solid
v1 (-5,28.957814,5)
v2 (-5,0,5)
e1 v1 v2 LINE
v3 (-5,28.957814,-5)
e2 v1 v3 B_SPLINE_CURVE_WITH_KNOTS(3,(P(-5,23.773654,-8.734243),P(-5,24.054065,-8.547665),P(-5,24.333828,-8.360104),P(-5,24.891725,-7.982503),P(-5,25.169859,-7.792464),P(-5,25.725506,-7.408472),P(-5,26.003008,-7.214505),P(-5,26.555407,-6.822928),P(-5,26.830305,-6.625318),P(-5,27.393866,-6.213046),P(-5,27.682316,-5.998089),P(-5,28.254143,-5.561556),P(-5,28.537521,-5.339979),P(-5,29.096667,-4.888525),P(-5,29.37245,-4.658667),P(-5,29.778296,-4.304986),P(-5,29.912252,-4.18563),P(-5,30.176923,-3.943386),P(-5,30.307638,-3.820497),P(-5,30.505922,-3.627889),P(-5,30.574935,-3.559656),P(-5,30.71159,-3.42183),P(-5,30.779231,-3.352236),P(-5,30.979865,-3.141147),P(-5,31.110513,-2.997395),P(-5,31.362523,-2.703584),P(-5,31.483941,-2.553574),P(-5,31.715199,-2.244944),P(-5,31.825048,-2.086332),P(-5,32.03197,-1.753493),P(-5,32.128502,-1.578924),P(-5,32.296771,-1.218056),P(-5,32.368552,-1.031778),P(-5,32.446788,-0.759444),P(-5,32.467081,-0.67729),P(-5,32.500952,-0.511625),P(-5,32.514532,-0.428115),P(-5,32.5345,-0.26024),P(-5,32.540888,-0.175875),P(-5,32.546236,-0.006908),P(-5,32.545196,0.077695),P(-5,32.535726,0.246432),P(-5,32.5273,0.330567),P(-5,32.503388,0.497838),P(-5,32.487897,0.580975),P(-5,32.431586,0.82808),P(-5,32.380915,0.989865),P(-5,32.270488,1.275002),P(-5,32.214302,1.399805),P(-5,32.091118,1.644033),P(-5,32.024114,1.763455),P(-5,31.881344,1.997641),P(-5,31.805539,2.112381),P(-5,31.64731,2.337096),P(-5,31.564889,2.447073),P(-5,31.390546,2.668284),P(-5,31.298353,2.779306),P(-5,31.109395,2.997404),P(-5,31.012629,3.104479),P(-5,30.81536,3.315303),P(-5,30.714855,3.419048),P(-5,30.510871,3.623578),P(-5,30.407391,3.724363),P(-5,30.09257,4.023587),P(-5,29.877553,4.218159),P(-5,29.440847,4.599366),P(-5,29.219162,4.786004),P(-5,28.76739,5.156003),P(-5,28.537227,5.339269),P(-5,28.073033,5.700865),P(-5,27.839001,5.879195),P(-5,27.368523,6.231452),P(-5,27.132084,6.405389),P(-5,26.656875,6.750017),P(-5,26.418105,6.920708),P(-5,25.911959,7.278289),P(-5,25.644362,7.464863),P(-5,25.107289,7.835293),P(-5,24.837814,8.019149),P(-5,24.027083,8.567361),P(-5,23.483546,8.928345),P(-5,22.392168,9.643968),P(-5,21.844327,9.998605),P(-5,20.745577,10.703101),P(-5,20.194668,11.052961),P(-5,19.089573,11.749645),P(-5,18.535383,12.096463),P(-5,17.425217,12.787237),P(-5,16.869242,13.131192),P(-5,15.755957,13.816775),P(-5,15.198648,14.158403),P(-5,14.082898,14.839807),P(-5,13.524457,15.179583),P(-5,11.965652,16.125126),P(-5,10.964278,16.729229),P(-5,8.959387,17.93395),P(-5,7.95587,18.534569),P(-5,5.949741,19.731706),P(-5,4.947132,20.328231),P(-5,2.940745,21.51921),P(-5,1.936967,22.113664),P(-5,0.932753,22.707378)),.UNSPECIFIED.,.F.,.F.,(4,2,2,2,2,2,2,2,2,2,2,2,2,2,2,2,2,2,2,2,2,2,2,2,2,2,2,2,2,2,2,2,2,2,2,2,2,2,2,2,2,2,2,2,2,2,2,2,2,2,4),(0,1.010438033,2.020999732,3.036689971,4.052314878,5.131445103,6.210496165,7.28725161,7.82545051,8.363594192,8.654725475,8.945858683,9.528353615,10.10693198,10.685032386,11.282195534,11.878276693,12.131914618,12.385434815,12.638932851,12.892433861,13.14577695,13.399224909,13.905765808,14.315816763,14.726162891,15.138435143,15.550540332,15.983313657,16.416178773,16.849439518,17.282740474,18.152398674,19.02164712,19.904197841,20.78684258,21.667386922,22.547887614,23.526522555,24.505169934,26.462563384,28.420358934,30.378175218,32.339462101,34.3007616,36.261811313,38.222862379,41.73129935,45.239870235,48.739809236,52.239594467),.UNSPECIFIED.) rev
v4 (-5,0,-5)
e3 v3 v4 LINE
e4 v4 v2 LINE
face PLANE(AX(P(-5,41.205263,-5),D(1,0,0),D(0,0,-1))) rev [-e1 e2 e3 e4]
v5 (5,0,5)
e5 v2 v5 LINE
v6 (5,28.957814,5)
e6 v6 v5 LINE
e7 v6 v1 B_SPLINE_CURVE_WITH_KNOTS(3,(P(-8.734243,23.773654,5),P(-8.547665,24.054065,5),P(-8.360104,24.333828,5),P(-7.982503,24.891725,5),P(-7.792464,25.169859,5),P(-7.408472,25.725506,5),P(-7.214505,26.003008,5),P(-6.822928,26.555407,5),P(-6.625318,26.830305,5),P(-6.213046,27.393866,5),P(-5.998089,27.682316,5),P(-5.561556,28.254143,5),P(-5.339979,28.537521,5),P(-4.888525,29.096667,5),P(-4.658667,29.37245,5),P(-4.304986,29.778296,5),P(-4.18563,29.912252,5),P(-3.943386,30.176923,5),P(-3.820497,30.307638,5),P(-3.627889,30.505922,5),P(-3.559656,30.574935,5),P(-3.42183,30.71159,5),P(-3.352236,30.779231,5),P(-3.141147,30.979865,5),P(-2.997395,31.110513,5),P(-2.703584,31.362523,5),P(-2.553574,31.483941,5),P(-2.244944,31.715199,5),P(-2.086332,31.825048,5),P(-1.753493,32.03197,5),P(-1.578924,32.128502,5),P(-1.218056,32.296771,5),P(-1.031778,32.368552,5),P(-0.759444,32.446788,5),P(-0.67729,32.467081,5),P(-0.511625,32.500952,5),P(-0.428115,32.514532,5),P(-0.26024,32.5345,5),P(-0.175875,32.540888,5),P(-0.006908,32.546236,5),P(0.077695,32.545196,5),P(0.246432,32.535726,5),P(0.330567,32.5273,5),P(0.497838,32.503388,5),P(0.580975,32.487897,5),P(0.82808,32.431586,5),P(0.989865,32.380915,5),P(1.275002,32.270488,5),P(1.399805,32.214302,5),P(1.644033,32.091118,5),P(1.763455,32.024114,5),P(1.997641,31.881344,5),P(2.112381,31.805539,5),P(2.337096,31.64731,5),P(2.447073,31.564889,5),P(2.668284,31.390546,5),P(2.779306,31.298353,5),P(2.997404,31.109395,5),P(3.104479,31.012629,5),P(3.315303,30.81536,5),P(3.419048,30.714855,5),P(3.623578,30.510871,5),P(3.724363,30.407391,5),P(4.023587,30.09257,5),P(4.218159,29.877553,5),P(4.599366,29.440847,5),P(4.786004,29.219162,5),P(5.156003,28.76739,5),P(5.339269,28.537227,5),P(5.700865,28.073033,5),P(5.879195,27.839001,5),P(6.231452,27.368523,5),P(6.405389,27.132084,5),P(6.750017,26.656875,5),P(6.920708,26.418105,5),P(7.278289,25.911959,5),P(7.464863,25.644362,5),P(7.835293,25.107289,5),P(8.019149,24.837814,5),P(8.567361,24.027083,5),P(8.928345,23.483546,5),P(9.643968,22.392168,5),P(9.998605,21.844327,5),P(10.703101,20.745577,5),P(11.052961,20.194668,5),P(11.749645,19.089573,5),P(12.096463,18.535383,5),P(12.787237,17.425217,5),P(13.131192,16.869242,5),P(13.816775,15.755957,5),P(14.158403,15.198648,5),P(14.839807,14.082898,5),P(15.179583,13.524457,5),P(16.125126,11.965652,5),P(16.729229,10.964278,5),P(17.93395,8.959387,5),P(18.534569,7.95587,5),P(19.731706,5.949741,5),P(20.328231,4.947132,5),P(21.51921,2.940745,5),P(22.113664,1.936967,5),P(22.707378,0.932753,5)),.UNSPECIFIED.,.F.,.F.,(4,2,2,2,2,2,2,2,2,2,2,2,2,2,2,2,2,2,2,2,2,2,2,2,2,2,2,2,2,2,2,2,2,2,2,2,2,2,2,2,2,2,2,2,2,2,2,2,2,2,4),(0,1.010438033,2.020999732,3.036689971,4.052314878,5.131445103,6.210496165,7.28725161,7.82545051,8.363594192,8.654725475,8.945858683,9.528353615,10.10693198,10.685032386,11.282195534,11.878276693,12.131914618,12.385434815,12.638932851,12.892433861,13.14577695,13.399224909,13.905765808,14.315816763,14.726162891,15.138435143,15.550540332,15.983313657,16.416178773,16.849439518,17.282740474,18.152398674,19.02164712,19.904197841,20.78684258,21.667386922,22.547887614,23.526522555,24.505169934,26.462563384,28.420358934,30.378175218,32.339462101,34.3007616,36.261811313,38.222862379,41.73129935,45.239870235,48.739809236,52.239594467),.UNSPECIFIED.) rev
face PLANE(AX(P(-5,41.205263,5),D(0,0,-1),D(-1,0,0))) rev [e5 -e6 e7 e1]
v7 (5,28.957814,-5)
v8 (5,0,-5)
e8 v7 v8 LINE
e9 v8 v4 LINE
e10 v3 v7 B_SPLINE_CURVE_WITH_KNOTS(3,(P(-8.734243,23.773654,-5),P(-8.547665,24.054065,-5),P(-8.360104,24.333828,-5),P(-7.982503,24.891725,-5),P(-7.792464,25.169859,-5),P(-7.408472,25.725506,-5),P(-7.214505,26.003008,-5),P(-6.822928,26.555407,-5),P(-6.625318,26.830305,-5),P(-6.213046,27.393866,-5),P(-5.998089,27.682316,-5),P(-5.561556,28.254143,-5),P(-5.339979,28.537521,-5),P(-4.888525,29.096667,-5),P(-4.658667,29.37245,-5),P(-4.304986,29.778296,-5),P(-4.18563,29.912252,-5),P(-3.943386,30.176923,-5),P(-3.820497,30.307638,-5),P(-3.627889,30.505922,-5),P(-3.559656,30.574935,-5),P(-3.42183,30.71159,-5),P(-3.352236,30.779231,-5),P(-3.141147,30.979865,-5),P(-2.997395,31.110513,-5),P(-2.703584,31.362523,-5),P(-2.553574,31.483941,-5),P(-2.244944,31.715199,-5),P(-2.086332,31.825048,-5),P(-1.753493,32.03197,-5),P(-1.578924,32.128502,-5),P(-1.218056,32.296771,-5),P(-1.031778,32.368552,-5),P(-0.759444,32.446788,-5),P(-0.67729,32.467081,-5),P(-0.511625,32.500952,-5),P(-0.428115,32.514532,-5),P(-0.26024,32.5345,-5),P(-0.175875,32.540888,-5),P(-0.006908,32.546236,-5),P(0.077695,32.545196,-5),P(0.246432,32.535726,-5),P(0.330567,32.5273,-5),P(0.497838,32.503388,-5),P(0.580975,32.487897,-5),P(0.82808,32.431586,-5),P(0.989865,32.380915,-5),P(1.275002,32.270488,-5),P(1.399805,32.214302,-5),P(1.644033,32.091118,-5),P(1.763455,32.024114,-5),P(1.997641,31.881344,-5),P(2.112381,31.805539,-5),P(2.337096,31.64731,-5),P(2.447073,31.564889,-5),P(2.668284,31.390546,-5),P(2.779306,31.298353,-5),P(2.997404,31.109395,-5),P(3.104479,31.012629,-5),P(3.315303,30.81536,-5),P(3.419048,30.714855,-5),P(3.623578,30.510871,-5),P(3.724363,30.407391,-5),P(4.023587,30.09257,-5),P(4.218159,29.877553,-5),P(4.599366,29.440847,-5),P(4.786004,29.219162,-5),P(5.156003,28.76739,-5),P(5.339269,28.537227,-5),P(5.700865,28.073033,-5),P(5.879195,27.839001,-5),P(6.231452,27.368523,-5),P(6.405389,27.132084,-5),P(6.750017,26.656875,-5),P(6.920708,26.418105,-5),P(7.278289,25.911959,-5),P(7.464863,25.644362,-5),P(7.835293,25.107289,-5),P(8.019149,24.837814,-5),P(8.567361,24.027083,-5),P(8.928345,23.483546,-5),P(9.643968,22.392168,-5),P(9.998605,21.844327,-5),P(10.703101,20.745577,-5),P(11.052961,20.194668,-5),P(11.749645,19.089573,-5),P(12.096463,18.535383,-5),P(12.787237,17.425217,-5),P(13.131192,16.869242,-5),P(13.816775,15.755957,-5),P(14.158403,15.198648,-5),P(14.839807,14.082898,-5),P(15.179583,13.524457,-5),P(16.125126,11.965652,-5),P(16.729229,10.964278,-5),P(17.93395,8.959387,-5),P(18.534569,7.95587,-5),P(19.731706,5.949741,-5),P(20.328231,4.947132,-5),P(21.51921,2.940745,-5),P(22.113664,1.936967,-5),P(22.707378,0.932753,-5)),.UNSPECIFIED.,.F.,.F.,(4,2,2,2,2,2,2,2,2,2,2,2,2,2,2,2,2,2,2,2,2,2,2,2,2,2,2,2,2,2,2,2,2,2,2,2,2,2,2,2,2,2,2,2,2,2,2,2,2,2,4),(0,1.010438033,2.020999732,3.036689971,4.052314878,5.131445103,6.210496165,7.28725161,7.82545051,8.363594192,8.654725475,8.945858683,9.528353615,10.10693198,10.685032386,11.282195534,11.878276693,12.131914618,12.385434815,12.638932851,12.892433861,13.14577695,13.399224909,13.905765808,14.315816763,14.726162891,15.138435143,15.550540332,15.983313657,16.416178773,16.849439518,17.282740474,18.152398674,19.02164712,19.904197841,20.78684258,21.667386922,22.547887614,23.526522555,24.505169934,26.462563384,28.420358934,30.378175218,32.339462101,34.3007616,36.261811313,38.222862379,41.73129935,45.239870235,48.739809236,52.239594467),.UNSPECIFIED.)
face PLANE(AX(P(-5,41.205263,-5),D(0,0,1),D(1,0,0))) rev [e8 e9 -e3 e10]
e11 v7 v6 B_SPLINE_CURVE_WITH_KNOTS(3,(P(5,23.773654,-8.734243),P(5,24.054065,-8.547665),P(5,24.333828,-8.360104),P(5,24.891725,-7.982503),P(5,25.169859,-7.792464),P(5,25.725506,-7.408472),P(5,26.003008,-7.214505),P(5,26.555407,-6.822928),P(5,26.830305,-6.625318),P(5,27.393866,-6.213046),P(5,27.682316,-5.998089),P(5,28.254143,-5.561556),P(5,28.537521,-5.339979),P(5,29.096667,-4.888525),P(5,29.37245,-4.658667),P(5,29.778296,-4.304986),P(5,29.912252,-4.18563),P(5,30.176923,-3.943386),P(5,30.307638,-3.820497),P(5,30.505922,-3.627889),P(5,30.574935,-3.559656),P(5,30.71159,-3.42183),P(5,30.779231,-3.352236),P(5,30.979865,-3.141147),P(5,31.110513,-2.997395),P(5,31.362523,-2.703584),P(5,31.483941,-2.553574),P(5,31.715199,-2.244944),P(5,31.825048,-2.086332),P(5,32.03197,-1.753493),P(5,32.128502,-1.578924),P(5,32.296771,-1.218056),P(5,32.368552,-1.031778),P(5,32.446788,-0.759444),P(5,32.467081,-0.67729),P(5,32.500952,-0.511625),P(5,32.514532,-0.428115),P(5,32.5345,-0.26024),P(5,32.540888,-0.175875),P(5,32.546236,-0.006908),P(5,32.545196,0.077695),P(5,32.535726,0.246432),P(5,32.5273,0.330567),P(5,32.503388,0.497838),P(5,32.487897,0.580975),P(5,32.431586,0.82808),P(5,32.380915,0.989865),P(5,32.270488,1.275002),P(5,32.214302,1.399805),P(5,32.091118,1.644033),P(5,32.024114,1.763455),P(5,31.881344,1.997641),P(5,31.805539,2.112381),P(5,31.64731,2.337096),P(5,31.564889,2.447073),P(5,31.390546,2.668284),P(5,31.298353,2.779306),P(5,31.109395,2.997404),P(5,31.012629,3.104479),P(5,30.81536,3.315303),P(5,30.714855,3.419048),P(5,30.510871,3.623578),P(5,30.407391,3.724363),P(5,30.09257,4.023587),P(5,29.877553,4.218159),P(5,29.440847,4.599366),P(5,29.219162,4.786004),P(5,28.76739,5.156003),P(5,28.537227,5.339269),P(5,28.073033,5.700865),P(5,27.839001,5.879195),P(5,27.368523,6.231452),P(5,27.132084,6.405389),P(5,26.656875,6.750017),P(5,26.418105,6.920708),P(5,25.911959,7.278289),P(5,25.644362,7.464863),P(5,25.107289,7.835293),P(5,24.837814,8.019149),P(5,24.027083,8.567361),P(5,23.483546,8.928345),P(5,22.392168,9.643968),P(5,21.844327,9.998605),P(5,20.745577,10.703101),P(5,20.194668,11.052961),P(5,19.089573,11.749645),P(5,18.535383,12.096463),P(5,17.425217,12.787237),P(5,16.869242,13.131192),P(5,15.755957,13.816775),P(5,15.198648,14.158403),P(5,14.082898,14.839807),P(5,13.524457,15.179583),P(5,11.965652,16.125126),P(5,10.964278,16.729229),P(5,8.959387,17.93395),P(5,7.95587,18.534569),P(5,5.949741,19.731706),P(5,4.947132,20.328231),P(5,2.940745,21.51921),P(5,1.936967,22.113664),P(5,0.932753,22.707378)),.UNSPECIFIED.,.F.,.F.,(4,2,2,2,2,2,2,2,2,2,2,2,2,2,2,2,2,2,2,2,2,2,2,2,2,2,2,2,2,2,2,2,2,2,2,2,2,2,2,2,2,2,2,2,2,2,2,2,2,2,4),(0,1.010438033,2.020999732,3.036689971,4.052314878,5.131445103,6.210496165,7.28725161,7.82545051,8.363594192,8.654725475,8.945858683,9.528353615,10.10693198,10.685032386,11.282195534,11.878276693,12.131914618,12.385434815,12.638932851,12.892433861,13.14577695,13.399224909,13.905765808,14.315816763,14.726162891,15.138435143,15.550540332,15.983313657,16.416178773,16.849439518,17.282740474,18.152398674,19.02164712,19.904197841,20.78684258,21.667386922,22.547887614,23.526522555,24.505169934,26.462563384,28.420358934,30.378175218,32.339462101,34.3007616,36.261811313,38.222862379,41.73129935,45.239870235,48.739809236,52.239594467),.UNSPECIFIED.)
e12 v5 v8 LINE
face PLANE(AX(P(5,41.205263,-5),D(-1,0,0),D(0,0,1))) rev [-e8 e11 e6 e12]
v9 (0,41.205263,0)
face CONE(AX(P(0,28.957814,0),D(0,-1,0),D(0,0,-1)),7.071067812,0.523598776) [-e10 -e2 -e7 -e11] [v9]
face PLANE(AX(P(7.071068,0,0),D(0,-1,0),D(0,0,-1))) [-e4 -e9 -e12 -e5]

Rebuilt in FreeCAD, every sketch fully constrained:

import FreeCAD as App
import Part
import Sketcher
from FreeCAD import Vector
Q = App.Units.Quantity

doc = App.newDocument("Part")
body = doc.addObject("PartDesign::Body", "Body")

sketch1 = body.newObject("Sketcher::SketchObject", "Sketch")
sketch1.AttachmentSupport = (doc.getObject("XY_Plane"), [""])
sketch1.MapMode = "FlatFace"
sketch1.addGeometry(Part.LineSegment(Vector(0, 41, 0), Vector(0, 0, 0)), False)
sketch1.addGeometry(Part.LineSegment(Vector(0, 0, 0), Vector(7, 0, 0)), False)
sketch1.addGeometry(Part.LineSegment(Vector(7, 0, 0), Vector(7, 29, 0)), False)
sketch1.addGeometry(Part.LineSegment(Vector(7, 29, 0), Vector(0, 41, 0)), False)
sketch1.addConstraint(Sketcher.Constraint("Coincident", 0, 2, 1, 1))
sketch1.addConstraint(Sketcher.Constraint("Coincident", 1, 2, 2, 1))
sketch1.addConstraint(Sketcher.Constraint("Coincident", 2, 2, 3, 1))
sketch1.addConstraint(Sketcher.Constraint("Coincident", 3, 2, 0, 1))
sketch1.addConstraint(Sketcher.Constraint("Vertical", 0))
sketch1.addConstraint(Sketcher.Constraint("Horizontal", 1))
sketch1.addConstraint(Sketcher.Constraint("Vertical", 2))
sketch1.addConstraint(Sketcher.Constraint("Coincident", 0, 2, -1, 1))
sketch1.addConstraint(Sketcher.Constraint("Angle", 3, Q("120 deg")))
sketch1.addConstraint(Sketcher.Constraint("DistanceX", 1, 1, 1, 2, Q("7.071068 mm")))
sketch1.addConstraint(Sketcher.Constraint("DistanceY", 0, 2, 0, 1, Q("41.205263 mm")))
revolution = body.newObject("PartDesign::Revolution", "Revolution")
revolution.Profile = sketch1
revolution.ReferenceAxis = (sketch1, ["V_Axis"])
revolution.Angle = 360

sketch2 = body.newObject("Sketcher::SketchObject", "Sketch001")
sketch2.AttachmentSupport = (doc.getObject("XZ_Plane"), [""])
sketch2.MapMode = "FlatFace"
sketch2.addGeometry(Part.LineSegment(Vector(-13, -13, 0), Vector(-13, 13, 0)), False)
sketch2.addGeometry(Part.LineSegment(Vector(-13, 13, 0), Vector(13, 13, 0)), False)
sketch2.addGeometry(Part.LineSegment(Vector(13, 13, 0), Vector(13, -13, 0)), False)
sketch2.addGeometry(Part.LineSegment(Vector(13, -13, 0), Vector(-13, -13, 0)), False)
sketch2.addGeometry(Part.LineSegment(Vector(5, 5, 0), Vector(-5, 5, 0)), False)
sketch2.addGeometry(Part.LineSegment(Vector(-5, 5, 0), Vector(-5, -5, 0)), False)
sketch2.addGeometry(Part.LineSegment(Vector(-5, -5, 0), Vector(5, -5, 0)), False)
sketch2.addGeometry(Part.LineSegment(Vector(5, -5, 0), Vector(5, 5, 0)), False)
sketch2.addConstraint(Sketcher.Constraint("Coincident", 0, 2, 1, 1))
sketch2.addConstraint(Sketcher.Constraint("Coincident", 1, 2, 2, 1))
sketch2.addConstraint(Sketcher.Constraint("Coincident", 2, 2, 3, 1))
sketch2.addConstraint(Sketcher.Constraint("Coincident", 3, 2, 0, 1))
sketch2.addConstraint(Sketcher.Constraint("Coincident", 4, 2, 5, 1))
sketch2.addConstraint(Sketcher.Constraint("Coincident", 5, 2, 6, 1))
sketch2.addConstraint(Sketcher.Constraint("Coincident", 6, 2, 7, 1))
sketch2.addConstraint(Sketcher.Constraint("Coincident", 7, 2, 4, 1))
sketch2.addConstraint(Sketcher.Constraint("Vertical", 0))
sketch2.addConstraint(Sketcher.Constraint("Horizontal", 1))
sketch2.addConstraint(Sketcher.Constraint("Vertical", 2))
sketch2.addConstraint(Sketcher.Constraint("Horizontal", 3))
sketch2.addConstraint(Sketcher.Constraint("Horizontal", 4))
sketch2.addConstraint(Sketcher.Constraint("Vertical", 5))
sketch2.addConstraint(Sketcher.Constraint("Horizontal", 6))
sketch2.addConstraint(Sketcher.Constraint("Vertical", 7))
sketch2.addConstraint(Sketcher.Constraint("Symmetric", 0, 2, 2, 2, -1, 1))
sketch2.addConstraint(Sketcher.Constraint("Symmetric", 4, 2, 6, 2, -1, 1))
sketch2.addConstraint(Sketcher.Constraint("Equal", 3, 0))
sketch2.addConstraint(Sketcher.Constraint("Equal", 6, 5))
sketch2.addConstraint(Sketcher.Constraint("DistanceX", 4, 2, 4, 1, Q("10 mm")))
sketch2.addConstraint(Sketcher.Constraint("DistanceX", 1, 1, 1, 2, Q("25.302 mm")))
pocket1 = body.newObject("PartDesign::Pocket", "Pocket")
pocket1.Profile = sketch2
pocket1.Type = "ThroughAll"

doc.recompute()
